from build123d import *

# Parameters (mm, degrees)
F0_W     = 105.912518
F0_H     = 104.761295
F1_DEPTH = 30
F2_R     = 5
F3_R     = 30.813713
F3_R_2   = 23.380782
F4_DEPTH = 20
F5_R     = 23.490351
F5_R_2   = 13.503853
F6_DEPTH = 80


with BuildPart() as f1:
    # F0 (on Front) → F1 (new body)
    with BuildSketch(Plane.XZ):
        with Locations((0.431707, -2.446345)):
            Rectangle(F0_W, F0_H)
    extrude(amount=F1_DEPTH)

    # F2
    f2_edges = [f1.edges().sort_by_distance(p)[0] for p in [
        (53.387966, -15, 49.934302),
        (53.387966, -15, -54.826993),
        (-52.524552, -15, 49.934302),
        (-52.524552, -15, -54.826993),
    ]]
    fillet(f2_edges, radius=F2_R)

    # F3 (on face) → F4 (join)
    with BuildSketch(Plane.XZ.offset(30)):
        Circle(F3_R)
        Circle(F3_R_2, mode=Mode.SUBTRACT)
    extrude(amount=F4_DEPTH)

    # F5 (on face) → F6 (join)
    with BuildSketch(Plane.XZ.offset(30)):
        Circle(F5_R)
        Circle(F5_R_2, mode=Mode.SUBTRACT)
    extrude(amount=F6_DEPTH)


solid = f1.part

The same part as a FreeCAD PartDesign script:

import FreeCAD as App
import Part
import Sketcher

V = App.Vector
Q = App.Units.Quantity


def edges_at(feature, points):
    """Names of the edges that pass closest to the given points."""
    edges = feature.Shape.Edges
    near = lambda p: min(range(len(edges)), key=lambda i: edges[i].distToShape(Part.Vertex(*p))[0])
    return sorted({f"Edge{near(p) + 1}" for p in points})


def add_polygon(sketch, points):
    """Adds a closed chain of lines whose ends are joined by coincident constraints."""
    first, n = sketch.GeometryCount, len(points)
    for a, b in zip(points, points[1:] + points[:1]):
        sketch.addGeometry(Part.LineSegment(App.Vector(*a, 0), App.Vector(*b, 0)), False)
    for i in range(n):
        sketch.addConstraint(Sketcher.Constraint("Coincident", first + i, 2, first + (i + 1) % n, 1))

doc = App.newDocument("Part")
body = doc.addObject("PartDesign::Body", "Body")

# Sketch on XZ plane
sketch1 = body.newObject("Sketcher::SketchObject", "Sketch")
sketch1.AttachmentSupport = (doc.getObject("XZ_Plane"), [""])
sketch1.MapMode = "FlatFace"
add_polygon(sketch1, [(-53, 50), (-53, -55), (53, -55), (53, 50)])  # lines 0-3
sketch1.addConstraint([
    Sketcher.Constraint("Vertical", 0),
    Sketcher.Constraint("Horizontal", 1),
    Sketcher.Constraint("Vertical", 2),
    Sketcher.Constraint("Horizontal", 3),
    Sketcher.Constraint("DistanceX", 1, 1, 1, 2, Q("105.912518 mm")),
    Sketcher.Constraint("DistanceY", 0, 2, 0, 1, Q("104.761295 mm")),
    Sketcher.Constraint("DistanceX", 0, 2, -1, 1, Q("52.524552 mm")),
    Sketcher.Constraint("DistanceY", 0, 2, -1, 1, Q("54.826993 mm")),
])
pad1 = body.newObject("PartDesign::Pad", "Pad")
pad1.Profile = sketch1
pad1.Length = 30
doc.recompute()

fillet = body.newObject("PartDesign::Fillet", "Fillet")
fillet.Base = (pad1, edges_at(pad1, [
    (53.388, -15, 49.934),
    (53.388, -15, -54.827),
    (-52.525, -15, 49.934),
    (-52.525, -15, -54.827),
]))
fillet.Radius = 5

# Sketch on XZ plane
sketch2 = body.newObject("Sketcher::SketchObject", "Sketch001")
sketch2.AttachmentSupport = (doc.getObject("XZ_Plane"), [""])
sketch2.MapMode = "FlatFace"
sketch2.AttachmentOffset = App.Placement(V(0, 0, 30), App.Rotation())
sketch2.addGeometry([
    Part.Circle(V(0, 0, 0), V(0, 0, 1), 31),
    Part.Circle(V(0, 0, 0), V(0, 0, 1), 23),
], False)
sketch2.addConstraint([
    Sketcher.Constraint("Coincident", 0, 3, -1, 1),
    Sketcher.Constraint("Coincident", 1, 3, -1, 1),
    Sketcher.Constraint("Diameter", 0, Q("61.627426 mm")),
    Sketcher.Constraint("Diameter", 1, Q("46.761564 mm")),
])
pad2 = body.newObject("PartDesign::Pad", "Pad001")
pad2.Profile = sketch2
pad2.Length = 20

# Sketch on XZ plane
sketch3 = body.newObject("Sketcher::SketchObject", "Sketch002")
sketch3.AttachmentSupport = (doc.getObject("XZ_Plane"), [""])
sketch3.MapMode = "FlatFace"
sketch3.AttachmentOffset = App.Placement(V(0, 0, 30), App.Rotation())
sketch3.addGeometry([
    Part.Circle(V(0, 0, 0), V(0, 0, 1), 23),
    Part.Circle(V(0, 0, 0), V(0, 0, 1), 14),
], False)
sketch3.addConstraint([
    Sketcher.Constraint("Coincident", 0, 3, -1, 1),
    Sketcher.Constraint("Coincident", 1, 3, -1, 1),
    Sketcher.Constraint("Diameter", 0, Q("46.980702 mm")),
    Sketcher.Constraint("Diameter", 1, Q("27.007706 mm")),
])
pad3 = body.newObject("PartDesign::Pad", "Pad002")
pad3.Profile = sketch3
pad3.Length = 80

doc.recompute()
